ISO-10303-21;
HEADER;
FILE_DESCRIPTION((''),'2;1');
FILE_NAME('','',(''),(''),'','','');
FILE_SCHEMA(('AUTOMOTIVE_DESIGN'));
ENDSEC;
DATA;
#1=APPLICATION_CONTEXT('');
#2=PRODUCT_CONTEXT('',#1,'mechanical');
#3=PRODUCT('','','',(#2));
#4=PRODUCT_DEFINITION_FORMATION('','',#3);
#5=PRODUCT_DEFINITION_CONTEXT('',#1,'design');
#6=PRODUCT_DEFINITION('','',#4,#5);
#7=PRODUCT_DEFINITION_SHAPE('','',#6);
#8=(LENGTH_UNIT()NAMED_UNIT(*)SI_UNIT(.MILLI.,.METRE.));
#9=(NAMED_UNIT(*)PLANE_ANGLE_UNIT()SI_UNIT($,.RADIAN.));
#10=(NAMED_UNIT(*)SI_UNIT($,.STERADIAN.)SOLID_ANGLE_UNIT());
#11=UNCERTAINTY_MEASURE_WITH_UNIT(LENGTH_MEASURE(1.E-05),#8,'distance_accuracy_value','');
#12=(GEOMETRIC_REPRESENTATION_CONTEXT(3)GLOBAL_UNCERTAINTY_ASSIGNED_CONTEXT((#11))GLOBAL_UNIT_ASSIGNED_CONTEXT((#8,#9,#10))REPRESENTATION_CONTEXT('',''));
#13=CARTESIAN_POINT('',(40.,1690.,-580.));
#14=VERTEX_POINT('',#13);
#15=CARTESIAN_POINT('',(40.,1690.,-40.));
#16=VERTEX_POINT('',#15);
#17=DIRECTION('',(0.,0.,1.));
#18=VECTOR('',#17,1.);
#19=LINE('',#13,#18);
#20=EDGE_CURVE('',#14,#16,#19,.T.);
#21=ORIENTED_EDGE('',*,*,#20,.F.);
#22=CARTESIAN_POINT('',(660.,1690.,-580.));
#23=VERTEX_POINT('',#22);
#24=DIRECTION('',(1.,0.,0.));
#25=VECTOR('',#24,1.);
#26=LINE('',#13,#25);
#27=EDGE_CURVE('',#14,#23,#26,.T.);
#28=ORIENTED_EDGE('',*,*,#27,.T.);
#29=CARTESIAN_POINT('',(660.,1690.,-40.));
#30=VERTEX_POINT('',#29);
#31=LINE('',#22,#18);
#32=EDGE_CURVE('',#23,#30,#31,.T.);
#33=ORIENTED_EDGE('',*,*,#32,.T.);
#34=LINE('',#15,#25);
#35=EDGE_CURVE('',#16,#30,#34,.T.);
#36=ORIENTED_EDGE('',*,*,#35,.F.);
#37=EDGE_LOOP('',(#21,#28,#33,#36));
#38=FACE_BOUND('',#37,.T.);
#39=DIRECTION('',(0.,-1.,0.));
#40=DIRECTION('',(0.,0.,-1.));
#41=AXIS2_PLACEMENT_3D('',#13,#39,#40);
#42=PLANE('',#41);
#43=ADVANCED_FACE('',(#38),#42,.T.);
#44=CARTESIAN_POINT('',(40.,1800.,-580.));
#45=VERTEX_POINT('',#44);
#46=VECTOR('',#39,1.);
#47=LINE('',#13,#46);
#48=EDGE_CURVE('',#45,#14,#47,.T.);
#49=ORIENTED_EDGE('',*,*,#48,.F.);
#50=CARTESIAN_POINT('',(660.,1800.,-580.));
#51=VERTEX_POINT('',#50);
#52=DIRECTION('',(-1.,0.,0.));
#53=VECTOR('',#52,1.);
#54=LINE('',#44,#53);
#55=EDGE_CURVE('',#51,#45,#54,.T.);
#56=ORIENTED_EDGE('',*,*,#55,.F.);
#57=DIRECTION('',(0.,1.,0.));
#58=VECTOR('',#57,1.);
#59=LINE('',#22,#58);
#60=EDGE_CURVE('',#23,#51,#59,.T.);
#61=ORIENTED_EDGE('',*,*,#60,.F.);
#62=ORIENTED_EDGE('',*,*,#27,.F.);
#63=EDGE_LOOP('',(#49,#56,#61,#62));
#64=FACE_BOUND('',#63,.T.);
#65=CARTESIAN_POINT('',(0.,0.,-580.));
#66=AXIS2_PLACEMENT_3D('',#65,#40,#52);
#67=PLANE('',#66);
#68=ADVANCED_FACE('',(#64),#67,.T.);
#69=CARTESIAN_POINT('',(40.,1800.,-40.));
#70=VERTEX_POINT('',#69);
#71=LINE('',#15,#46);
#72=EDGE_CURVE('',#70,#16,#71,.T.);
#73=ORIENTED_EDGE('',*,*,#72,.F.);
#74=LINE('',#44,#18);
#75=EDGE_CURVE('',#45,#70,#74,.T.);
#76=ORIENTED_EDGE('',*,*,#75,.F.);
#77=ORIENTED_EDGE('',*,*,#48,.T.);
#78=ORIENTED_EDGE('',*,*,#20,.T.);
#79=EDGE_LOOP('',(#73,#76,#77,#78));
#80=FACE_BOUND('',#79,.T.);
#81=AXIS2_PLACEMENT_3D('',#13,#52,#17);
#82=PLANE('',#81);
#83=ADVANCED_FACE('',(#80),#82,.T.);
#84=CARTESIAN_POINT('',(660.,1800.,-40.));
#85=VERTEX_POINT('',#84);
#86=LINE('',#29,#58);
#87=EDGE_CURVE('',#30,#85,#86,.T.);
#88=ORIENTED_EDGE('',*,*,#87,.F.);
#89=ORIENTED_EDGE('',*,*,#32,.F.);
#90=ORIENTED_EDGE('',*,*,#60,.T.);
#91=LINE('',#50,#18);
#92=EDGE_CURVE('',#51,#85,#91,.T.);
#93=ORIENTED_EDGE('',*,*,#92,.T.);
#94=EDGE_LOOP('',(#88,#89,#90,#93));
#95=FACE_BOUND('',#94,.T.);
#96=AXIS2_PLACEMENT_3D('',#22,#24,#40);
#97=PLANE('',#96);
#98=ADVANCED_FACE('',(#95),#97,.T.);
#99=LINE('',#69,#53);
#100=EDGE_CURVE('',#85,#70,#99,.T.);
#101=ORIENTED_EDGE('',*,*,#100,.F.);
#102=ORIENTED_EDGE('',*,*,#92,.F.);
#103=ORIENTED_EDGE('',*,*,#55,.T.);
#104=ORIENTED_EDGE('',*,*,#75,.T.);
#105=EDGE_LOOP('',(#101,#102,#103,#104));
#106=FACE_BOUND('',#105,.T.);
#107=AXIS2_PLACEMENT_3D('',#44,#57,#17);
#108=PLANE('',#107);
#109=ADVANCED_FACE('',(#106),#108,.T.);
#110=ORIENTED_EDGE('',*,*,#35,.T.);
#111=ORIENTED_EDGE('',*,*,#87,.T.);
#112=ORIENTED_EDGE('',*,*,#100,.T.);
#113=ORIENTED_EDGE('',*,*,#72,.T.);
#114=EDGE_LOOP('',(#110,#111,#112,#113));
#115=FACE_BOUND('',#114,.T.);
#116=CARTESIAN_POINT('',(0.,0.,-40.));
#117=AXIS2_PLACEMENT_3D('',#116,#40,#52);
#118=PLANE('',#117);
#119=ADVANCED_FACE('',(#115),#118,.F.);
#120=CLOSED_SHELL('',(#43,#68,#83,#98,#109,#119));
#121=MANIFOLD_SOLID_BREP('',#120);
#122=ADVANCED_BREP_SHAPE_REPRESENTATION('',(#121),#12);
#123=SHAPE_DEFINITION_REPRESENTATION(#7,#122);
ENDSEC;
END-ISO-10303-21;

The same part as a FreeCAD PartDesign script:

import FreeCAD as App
import Part
import Sketcher
from FreeCAD import Vector
Q = App.Units.Quantity

doc = App.newDocument("Part")
params = doc.addObject("Spreadsheet::Sheet", "Params")
for row, (alias, value) in enumerate([
    ("sketch1_width", "620 mm"),
    ("sketch1_height", "110 mm"),
    ("pad1_length", "540 mm"),
], start=1):
    params.set(f"A{row}", alias)
    params.set(f"B{row}", "=" + value)
    params.setAlias(f"B{row}", alias)

body = doc.addObject("PartDesign::Body", "Body")

# Sketch on XY plane
sketch1 = body.newObject("Sketcher::SketchObject", "Sketch")
sketch1.AttachmentSupport = (doc.getObject("XY_Plane"), [""])
sketch1.MapMode = "FlatFace"
sketch1.AttachmentOffset = App.Placement(Vector(0, 0, -40), App.Rotation())
sketch1.addGeometry([
    Part.LineSegment(Vector(40, 1800, 0), Vector(40, 1690, 0)),
    Part.LineSegment(Vector(40, 1690, 0), Vector(660, 1690, 0)),
    Part.LineSegment(Vector(660, 1690, 0), Vector(660, 1800, 0)),
    Part.LineSegment(Vector(660, 1800, 0), Vector(40, 1800, 0)),
], False)
sketch1.addConstraint([
    Sketcher.Constraint("Coincident", 0, 2, 1, 1),
    Sketcher.Constraint("Coincident", 1, 2, 2, 1),
    Sketcher.Constraint("Coincident", 2, 2, 3, 1),
    Sketcher.Constraint("Coincident", 3, 2, 0, 1),
    Sketcher.Constraint("Vertical", 0),
    Sketcher.Constraint("Horizontal", 1),
    Sketcher.Constraint("Vertical", 2),
    Sketcher.Constraint("Horizontal", 3),
    Sketcher.Constraint("DistanceX", 1, 1, 1, 2, Q("620 mm")),
    Sketcher.Constraint("DistanceY", 0, 2, 0, 1, Q("110 mm")),
    Sketcher.Constraint("DistanceX", -1, 1, 0, 2, Q("40 mm")),
    Sketcher.Constraint("DistanceY", -1, 1, 0, 2, Q("1690 mm")),
])
sketch1.setExpression("Constraints[8]", "Params.sketch1_width")
sketch1.setExpression("Constraints[9]", "Params.sketch1_height")
pad1 = body.newObject("PartDesign::Pad", "Pad")
pad1.Profile = sketch1
pad1.setExpression("Length", "Params.pad1_length")
pad1.Reversed = True

doc.recompute()
